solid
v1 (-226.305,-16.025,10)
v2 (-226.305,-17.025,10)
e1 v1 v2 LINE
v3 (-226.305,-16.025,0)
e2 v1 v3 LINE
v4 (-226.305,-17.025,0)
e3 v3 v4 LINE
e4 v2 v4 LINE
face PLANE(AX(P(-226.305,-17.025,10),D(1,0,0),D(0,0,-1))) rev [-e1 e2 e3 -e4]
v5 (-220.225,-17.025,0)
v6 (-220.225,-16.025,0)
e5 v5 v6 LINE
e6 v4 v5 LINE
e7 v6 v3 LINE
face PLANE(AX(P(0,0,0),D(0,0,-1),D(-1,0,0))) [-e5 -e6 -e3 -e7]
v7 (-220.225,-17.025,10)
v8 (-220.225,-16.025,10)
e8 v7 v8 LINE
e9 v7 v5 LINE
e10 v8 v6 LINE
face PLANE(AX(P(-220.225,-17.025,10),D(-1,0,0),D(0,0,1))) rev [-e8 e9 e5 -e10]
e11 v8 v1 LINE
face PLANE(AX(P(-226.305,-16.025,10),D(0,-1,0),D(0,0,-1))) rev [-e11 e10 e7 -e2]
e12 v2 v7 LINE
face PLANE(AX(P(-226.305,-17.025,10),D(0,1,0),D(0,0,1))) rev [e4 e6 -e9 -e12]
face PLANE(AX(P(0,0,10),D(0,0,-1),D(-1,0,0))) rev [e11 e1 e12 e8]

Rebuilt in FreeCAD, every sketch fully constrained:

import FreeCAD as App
import Part
import Sketcher

V = App.Vector


def add_polygon(sketch, points):
    """Adds a closed chain of lines whose ends are joined by coincident constraints."""
    first, n = sketch.GeometryCount, len(points)
    for a, b in zip(points, points[1:] + points[:1]):
        sketch.addGeometry(Part.LineSegment(App.Vector(*a, 0), App.Vector(*b, 0)), False)
    for i in range(n):
        sketch.addConstraint(Sketcher.Constraint("Coincident", first + i, 2, first + (i + 1) % n, 1))

doc = App.newDocument("Part")
body = doc.addObject("PartDesign::Body", "Body")

# Sketch on XY plane
sketch1 = doc.addObject("Sketcher::SketchObject", "Sketch")
body.addObject(sketch1)
sketch1.AttachmentSupport = (doc.XY_Plane, [""])
sketch1.MapMode = "FlatFace"
add_polygon(sketch1, [(-226.3, -16), (-226.3, -17), (-220.2, -17), (-220.2, -16)])  # lines 0-3
sketch1.addConstraint([
    Sketcher.Constraint("Vertical", 0),
    Sketcher.Constraint("Horizontal", 1),
    Sketcher.Constraint("Vertical", 2),
    Sketcher.Constraint("Horizontal", 3),
    Sketcher.Constraint("DistanceY", 0, 2, 0, 1, 1.0),
    Sketcher.Constraint("DistanceX", 1, 1, 1, 2, 6.08),
    Sketcher.Constraint("DistanceX", 0, 2, -1, 1, 226.305),
    Sketcher.Constraint("DistanceY", 0, 2, -1, 1, 17.025),
])
pad1 = doc.addObject("PartDesign::Pad", "Pad")
body.addObject(pad1)
pad1.Profile = sketch1
pad1.Length = 10

doc.recompute()
